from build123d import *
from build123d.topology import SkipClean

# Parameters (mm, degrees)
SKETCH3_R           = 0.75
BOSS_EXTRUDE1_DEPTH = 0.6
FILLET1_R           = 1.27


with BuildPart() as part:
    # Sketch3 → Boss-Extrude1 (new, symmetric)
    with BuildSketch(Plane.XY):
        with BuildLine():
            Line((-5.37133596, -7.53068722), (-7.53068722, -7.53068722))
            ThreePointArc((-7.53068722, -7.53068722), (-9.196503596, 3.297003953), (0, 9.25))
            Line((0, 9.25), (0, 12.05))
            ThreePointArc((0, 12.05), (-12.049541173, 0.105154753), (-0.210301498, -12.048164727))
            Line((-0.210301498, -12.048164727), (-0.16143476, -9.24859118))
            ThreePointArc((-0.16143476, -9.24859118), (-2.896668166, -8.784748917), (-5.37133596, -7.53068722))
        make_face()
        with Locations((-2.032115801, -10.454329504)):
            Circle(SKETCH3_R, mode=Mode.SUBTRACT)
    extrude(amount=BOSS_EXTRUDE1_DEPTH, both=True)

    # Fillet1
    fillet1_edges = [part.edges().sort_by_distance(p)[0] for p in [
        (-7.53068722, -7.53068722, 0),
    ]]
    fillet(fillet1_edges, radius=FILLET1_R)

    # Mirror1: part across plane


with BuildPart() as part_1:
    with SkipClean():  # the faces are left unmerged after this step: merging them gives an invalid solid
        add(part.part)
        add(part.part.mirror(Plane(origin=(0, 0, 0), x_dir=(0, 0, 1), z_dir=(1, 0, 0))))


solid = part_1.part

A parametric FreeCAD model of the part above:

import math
import FreeCAD as App
import Part
import Sketcher
from FreeCAD import Vector
Q = App.Units.Quantity


def edges_at(feature, points):
    """Names of the edges that pass closest to the given points."""
    edges = feature.Shape.Edges
    near = lambda p: min(range(len(edges)), key=lambda i: edges[i].distToShape(Part.Vertex(*p))[0])
    return sorted({f"Edge{near(p) + 1}" for p in points})

doc = App.newDocument("Part")
body = doc.addObject("PartDesign::Body", "Body")

sketch1 = doc.addObject("Sketcher::SketchObject", "Sketch")
body.addObject(sketch1)
sketch1.AttachmentSupport = (doc.XY_Plane, [""])
sketch1.MapMode = "FlatFace"
sketch1.addGeometry([
    Part.LineSegment(Vector(-5.4, -7.5, 0), Vector(-7.5, -7.5, 0)),
    Part.ArcOfCircle(Part.Circle(Vector(0, -0.8, 0), Vector(0, 0, 1), 10.1), math.radians(90), math.radians(222)),
    Part.LineSegment(Vector(0, 9.2, 0), Vector(0, 12.1, 0)),
    Part.ArcOfCircle(Part.Circle(Vector(0, 0, 0), Vector(0, 0, 1), 12.1), math.radians(90), math.radians(269)),
    Part.LineSegment(Vector(-0.2, -12, 0), Vector(-0.2, -9.2, 0)),
    Part.ArcOfCircle(Part.Circle(Vector(0, 0, 0), Vector(0, 0, 1), 9.2), math.radians(-125), math.radians(-91)),
    Part.Circle(Vector(-2, -10.5, 0), Vector(0, 0, 1), 0.8),
], False)
sketch1.addConstraint([
    Sketcher.Constraint("Coincident", 0, 2, 1, 2),
    Sketcher.Constraint("Coincident", 1, 1, 2, 1),
    Sketcher.Constraint("Coincident", 2, 2, 3, 1),
    Sketcher.Constraint("Coincident", 3, 2, 4, 1),
    Sketcher.Constraint("Coincident", 4, 2, 5, 2),
    Sketcher.Constraint("Coincident", 5, 1, 0, 1),
    Sketcher.Constraint("Horizontal", 0),
    Sketcher.Constraint("Vertical", 2),
    Sketcher.Constraint("Coincident", 3, 3, -1, 1),
    Sketcher.Constraint("Coincident", 5, 3, -1, 1),
    Sketcher.Constraint("PointOnObject", 1, 3, -2),
    Sketcher.Constraint("PointOnObject", 1, 1, -2),
    Sketcher.Constraint("Diameter", 6, Q("1.5 mm")),
    Sketcher.Constraint("Angle", 4, Q("89 deg")),
    Sketcher.Constraint("Radius", 3, Q("12.05 mm")),
    Sketcher.Constraint("Radius", 5, Q("9.25 mm")),
    Sketcher.Constraint("DistanceY", 2, 1, 2, 2, Q("2.8 mm")),
    Sketcher.Constraint("Radius", 1, Q("10.080121 mm")),
    Sketcher.Constraint("DistanceX", 0, 2, 0, 1, Q("2.159351 mm")),
    Sketcher.Constraint("DistanceX", 3, 2, -1, 1, Q("0.210301 mm")),
    Sketcher.Constraint("DistanceY", 6, 3, -1, 1, Q("10.45433 mm")),
    Sketcher.Constraint("DistanceX", 0, 2, 6, 3, Q("5.498571 mm")),
])
pad1 = doc.addObject("PartDesign::Pad", "Pad")
body.addObject(pad1)
pad1.Profile = sketch1
pad1.Length = 1.2
pad1.Midplane = True
doc.recompute()

fillet = doc.addObject("PartDesign::Fillet", "Fillet")
body.addObject(fillet)
fillet.Base = (pad1, edges_at(pad1, [(-7.531, -7.531, 0)]))
fillet.Radius = 1.27
body2 = doc.addObject("PartDesign::Body", "Body001")
doc.recompute()

body2.BaseFeature = body
doc.recompute()

mirroring = doc.addObject("Part::Mirroring", "Mirroring")
mirroring.Source = body
mirroring.Base = Vector(0, 0, 0)
mirroring.Normal = Vector(1, 0, 0)
body3 = doc.addObject("PartDesign::Body", "Body002")
body3.BaseFeature = mirroring
boolean = doc.addObject("PartDesign::Boolean", "Boolean")
body2.addObject(boolean)
boolean.Type = "Fuse"
boolean.addObjects([body3])
doc.recompute()
mirroring.Visibility = False

doc.recompute()
